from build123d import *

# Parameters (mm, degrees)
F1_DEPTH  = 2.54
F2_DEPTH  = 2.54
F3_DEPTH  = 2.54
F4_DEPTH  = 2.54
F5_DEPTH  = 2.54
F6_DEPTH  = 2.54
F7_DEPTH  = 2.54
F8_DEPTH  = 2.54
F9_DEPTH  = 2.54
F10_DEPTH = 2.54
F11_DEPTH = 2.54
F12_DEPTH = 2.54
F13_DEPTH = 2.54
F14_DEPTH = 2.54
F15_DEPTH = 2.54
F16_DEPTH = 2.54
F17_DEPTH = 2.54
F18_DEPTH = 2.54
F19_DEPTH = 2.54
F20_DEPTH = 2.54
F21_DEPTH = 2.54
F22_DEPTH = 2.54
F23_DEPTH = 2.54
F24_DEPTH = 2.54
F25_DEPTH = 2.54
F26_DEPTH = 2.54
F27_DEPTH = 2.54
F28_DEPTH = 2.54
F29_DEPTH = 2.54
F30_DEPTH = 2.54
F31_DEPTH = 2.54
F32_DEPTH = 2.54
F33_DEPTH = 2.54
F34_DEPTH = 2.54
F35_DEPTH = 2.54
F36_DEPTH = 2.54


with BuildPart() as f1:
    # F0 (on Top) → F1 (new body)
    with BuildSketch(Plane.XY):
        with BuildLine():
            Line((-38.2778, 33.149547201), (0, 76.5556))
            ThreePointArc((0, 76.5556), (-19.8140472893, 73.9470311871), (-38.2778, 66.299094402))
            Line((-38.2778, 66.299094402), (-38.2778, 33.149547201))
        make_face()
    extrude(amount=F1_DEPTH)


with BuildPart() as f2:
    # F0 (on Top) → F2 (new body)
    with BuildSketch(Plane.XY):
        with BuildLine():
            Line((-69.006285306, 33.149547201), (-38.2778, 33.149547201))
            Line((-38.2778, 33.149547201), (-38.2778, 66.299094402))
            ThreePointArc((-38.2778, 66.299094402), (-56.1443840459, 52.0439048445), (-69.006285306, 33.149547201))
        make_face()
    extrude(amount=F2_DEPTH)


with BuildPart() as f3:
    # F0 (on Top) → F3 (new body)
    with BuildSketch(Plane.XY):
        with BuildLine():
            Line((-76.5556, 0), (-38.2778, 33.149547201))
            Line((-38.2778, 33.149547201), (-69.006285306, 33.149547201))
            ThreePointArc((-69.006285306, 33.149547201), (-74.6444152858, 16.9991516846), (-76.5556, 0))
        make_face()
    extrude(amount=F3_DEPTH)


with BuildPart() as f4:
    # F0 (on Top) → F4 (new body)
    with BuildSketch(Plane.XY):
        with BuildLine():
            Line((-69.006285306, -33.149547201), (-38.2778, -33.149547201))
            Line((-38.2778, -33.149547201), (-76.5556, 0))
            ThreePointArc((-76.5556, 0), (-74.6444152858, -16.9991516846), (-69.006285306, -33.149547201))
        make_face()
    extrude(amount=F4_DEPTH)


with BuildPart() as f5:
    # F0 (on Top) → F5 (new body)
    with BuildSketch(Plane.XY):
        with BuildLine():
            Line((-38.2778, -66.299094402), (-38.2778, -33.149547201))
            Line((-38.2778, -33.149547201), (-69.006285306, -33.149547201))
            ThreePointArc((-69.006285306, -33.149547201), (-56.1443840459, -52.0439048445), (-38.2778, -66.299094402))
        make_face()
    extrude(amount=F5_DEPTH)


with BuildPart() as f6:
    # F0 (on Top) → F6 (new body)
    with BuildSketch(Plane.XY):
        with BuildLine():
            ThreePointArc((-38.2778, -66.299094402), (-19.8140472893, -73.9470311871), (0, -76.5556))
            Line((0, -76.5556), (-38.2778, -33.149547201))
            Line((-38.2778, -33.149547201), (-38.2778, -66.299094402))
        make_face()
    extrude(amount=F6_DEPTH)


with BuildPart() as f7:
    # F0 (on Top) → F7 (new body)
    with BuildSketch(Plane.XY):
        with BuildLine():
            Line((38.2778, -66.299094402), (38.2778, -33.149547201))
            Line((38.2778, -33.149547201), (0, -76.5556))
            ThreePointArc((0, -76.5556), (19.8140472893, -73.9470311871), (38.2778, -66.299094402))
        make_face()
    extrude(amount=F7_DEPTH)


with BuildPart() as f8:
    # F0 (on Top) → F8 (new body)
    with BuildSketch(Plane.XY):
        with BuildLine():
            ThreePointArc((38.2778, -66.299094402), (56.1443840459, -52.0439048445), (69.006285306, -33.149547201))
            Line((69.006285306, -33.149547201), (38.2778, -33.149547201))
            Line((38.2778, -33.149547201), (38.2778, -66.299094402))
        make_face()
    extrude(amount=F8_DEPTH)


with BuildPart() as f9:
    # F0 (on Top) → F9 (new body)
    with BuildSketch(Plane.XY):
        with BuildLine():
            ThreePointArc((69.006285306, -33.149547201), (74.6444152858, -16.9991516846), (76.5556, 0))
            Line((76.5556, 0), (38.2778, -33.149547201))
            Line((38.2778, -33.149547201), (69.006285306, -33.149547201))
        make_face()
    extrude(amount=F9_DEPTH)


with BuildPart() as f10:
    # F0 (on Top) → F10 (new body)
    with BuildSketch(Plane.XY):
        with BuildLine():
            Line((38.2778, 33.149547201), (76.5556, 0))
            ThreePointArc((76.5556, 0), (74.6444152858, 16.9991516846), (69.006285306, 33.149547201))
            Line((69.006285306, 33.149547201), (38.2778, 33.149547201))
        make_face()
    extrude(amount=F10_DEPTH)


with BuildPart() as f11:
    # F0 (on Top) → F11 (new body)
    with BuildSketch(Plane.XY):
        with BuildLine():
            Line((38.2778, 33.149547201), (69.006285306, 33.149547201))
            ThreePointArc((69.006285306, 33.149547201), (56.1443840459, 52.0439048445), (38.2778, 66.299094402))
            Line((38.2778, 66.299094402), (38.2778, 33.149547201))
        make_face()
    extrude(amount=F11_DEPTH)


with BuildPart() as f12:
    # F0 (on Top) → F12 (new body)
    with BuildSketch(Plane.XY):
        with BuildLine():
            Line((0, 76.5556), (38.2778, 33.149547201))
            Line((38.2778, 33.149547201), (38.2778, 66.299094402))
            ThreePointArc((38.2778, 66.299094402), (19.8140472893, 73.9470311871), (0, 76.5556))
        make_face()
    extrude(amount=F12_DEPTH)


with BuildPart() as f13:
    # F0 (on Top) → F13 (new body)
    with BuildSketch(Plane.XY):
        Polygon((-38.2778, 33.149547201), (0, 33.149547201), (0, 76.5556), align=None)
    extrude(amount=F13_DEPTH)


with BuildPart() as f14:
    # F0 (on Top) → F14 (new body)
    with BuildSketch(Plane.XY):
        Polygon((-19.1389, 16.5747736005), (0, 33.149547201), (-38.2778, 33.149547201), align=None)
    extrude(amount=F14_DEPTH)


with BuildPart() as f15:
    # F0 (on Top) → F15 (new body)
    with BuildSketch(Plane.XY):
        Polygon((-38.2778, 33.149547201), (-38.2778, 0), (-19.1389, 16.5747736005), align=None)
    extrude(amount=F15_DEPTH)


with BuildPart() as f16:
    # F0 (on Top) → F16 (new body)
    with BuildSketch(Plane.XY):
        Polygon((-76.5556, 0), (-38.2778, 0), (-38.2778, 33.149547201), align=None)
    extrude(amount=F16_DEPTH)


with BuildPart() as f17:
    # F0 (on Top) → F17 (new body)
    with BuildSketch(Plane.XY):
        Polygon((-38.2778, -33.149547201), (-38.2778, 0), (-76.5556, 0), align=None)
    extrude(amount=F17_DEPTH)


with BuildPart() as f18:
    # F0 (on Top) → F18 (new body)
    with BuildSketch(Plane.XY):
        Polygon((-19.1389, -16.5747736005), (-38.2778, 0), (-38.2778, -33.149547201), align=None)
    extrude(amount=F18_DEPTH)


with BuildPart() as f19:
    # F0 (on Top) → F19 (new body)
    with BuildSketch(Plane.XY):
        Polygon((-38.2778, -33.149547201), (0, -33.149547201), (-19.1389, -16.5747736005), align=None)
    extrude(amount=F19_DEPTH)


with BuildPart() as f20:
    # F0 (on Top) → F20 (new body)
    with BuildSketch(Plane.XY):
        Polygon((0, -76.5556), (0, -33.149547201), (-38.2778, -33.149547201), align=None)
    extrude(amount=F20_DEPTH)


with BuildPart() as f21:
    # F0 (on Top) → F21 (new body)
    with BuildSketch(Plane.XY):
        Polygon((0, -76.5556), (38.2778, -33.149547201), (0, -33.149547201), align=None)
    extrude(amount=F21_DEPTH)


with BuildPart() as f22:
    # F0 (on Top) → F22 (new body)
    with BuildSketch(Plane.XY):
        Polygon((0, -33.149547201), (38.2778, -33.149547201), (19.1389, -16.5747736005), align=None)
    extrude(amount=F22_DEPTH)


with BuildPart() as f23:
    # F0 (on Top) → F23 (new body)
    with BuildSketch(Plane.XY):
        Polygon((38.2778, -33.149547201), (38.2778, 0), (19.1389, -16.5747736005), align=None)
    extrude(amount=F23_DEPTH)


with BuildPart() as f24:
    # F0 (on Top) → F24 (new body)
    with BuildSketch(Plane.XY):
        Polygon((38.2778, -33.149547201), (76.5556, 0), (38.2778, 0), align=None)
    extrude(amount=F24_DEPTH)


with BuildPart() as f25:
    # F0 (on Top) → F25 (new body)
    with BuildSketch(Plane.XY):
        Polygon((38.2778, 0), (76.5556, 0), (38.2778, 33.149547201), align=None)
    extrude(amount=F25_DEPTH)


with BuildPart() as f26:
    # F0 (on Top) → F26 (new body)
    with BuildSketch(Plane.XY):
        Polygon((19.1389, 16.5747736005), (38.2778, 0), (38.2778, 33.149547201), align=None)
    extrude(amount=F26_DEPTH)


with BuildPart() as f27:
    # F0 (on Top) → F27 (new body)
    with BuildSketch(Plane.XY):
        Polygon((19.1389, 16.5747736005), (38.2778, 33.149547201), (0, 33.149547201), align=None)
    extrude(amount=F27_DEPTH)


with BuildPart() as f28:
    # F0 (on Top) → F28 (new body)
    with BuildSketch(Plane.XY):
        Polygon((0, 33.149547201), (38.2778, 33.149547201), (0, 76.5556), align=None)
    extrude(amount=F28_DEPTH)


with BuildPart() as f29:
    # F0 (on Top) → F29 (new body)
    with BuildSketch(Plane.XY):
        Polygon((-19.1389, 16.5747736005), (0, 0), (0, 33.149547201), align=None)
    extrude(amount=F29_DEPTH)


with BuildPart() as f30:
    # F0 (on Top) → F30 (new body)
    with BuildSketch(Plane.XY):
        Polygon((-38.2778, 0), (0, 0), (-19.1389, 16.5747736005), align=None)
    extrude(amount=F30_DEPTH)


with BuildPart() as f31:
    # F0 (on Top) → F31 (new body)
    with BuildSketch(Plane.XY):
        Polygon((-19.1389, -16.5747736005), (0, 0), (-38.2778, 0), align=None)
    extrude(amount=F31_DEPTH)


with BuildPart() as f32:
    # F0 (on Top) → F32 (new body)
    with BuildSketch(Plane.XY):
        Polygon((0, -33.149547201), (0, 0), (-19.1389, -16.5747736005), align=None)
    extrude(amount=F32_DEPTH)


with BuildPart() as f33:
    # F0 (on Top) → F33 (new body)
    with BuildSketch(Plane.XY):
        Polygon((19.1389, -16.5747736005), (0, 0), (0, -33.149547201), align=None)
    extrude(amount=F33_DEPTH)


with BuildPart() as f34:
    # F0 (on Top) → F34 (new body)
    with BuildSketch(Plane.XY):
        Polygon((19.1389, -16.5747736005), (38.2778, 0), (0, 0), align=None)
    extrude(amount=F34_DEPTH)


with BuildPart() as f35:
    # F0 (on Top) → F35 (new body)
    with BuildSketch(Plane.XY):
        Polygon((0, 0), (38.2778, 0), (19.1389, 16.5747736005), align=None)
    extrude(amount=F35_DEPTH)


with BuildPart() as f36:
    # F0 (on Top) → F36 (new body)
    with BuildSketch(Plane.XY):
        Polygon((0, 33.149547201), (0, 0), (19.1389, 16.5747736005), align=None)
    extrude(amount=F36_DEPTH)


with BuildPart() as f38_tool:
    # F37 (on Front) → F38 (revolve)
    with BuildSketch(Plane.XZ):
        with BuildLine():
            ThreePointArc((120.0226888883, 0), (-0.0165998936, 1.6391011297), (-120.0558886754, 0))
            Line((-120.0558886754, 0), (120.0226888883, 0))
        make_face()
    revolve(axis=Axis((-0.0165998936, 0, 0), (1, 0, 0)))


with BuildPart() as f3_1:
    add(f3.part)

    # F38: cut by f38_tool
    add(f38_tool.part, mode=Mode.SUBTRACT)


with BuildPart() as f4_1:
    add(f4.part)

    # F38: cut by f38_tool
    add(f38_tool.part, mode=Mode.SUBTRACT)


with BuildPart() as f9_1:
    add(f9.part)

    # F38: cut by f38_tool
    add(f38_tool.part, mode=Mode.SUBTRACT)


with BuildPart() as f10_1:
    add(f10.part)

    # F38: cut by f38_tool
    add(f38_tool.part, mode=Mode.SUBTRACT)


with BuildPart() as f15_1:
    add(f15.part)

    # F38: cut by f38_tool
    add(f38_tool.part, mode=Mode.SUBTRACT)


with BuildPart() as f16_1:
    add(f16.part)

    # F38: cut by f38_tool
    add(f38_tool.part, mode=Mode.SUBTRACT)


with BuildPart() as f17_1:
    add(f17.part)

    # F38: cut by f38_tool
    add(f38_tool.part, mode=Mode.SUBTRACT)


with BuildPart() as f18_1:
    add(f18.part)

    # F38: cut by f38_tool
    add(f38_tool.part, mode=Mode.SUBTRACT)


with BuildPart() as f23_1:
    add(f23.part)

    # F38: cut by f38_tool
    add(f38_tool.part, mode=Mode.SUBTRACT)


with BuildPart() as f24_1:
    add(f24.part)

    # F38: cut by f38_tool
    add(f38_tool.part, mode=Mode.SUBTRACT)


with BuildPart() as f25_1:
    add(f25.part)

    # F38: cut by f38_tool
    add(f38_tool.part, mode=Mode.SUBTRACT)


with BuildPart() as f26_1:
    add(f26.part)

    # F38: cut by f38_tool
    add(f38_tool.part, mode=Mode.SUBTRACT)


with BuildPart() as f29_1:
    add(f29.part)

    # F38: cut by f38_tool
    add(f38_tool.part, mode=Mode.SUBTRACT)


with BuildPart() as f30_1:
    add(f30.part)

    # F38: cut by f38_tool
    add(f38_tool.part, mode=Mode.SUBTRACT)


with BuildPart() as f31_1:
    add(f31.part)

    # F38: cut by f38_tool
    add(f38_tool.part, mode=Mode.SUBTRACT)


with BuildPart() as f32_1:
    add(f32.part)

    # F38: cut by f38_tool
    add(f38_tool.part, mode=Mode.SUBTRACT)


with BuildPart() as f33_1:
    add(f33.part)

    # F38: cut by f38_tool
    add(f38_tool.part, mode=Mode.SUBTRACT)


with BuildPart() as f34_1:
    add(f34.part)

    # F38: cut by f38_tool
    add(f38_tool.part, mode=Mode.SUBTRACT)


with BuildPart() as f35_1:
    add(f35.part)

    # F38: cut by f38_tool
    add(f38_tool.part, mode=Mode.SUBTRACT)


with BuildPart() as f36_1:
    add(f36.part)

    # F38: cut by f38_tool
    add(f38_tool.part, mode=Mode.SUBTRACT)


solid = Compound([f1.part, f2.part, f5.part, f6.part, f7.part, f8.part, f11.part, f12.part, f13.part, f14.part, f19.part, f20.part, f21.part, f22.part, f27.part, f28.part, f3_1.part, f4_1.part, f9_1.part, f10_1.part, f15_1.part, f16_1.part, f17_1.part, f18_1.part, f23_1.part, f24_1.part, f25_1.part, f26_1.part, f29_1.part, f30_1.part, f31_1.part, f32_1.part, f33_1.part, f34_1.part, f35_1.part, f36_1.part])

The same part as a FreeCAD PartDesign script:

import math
import FreeCAD as App
import Part
import Sketcher
from FreeCAD import Vector
Q = App.Units.Quantity

doc = App.newDocument("Part")
body = doc.addObject("PartDesign::Body", "Body")

sketch1 = body.newObject("Sketcher::SketchObject", "Sketch")
sketch1.AttachmentSupport = (doc.getObject("XY_Plane"), [""])
sketch1.MapMode = "FlatFace"
sketch1.addGeometry([
    Part.LineSegment(Vector(-38, 33, 0), Vector(0, 77, 0)),
    Part.ArcOfCircle(Part.Circle(Vector(0, 0, 0), Vector(0, 0, 1), 77), math.radians(90), math.radians(120)),
    Part.LineSegment(Vector(-38, 66, 0), Vector(-38, 33, 0)),
], False)
sketch1.addConstraint([
    Sketcher.Constraint("Coincident", 0, 2, 1, 1),
    Sketcher.Constraint("Coincident", 1, 2, 2, 1),
    Sketcher.Constraint("Coincident", 2, 2, 0, 1),
    Sketcher.Constraint("Vertical", 2),
    Sketcher.Constraint("Coincident", 1, 3, -1, 1),
    Sketcher.Constraint("PointOnObject", 0, 2, -2),
    Sketcher.Constraint("Radius", 1, Q("3.014 in")),
    Sketcher.Constraint("DistanceX", 1, 2, -1, 1, Q("1.507 in")),
    Sketcher.Constraint("DistanceY", 2, 2, 2, 1, Q("33.149547 mm")),
])
pad1 = body.newObject("PartDesign::Pad", "Pad")
pad1.Profile = sketch1
pad1.Length = Q("0.1 in")
body2 = doc.addObject("PartDesign::Body", "Body001")

sketch2 = body2.newObject("Sketcher::SketchObject", "Sketch001")
sketch2.AttachmentSupport = (doc.getObject("XY_Plane001"), [""])
sketch2.MapMode = "FlatFace"
sketch2.addGeometry([
    Part.LineSegment(Vector(-69, 33, 0), Vector(-38, 33, 0)),
    Part.LineSegment(Vector(-38, 33, 0), Vector(-38, 66, 0)),
    Part.ArcOfCircle(Part.Circle(Vector(0, 0, 0), Vector(0, 0, 1), 77), math.radians(120), math.radians(154)),
], False)
sketch2.addConstraint([
    Sketcher.Constraint("Coincident", 0, 2, 1, 1),
    Sketcher.Constraint("Coincident", 1, 2, 2, 1),
    Sketcher.Constraint("Coincident", 2, 2, 0, 1),
    Sketcher.Constraint("Horizontal", 0),
    Sketcher.Constraint("Vertical", 1),
    Sketcher.Constraint("Coincident", 2, 3, -1, 1),
    Sketcher.Constraint("Radius", 2, Q("3.014 in")),
    Sketcher.Constraint("DistanceX", 0, 2, -1, 1, Q("1.507 in")),
    Sketcher.Constraint("DistanceX", 0, 1, 0, 2, Q("30.728485 mm")),
])
pad2 = body2.newObject("PartDesign::Pad", "Pad001")
pad2.Profile = sketch2
pad2.Length = Q("0.1 in")
body3 = doc.addObject("PartDesign::Body", "Body002")

sketch3 = body3.newObject("Sketcher::SketchObject", "Sketch002")
sketch3.AttachmentSupport = (doc.getObject("XY_Plane002"), [""])
sketch3.MapMode = "FlatFace"
sketch3.addGeometry([
    Part.LineSegment(Vector(-77, 0, 0), Vector(-38, 33, 0)),
    Part.LineSegment(Vector(-38, 33, 0), Vector(-69, 33, 0)),
    Part.ArcOfCircle(Part.Circle(Vector(0, 0, 0), Vector(0, 0, 1), 77), math.radians(154), math.radians(180)),
], False)
sketch3.addConstraint([
    Sketcher.Constraint("Coincident", 0, 2, 1, 1),
    Sketcher.Constraint("Coincident", 1, 2, 2, 1),
    Sketcher.Constraint("Coincident", 2, 2, 0, 1),
    Sketcher.Constraint("Horizontal", 1),
    Sketcher.Constraint("Coincident", 2, 3, -1, 1),
    Sketcher.Constraint("PointOnObject", 2, 2, -1),
    Sketcher.Constraint("Radius", 2, Q("3.014 in")),
    Sketcher.Constraint("DistanceX", 0, 2, -1, 1, Q("1.507 in")),
    Sketcher.Constraint("Distance", 0, Q("50.63677 mm")),
])
pad3 = body3.newObject("PartDesign::Pad", "Pad002")
pad3.Profile = sketch3
pad3.Length = Q("0.1 in")
body4 = doc.addObject("PartDesign::Body", "Body003")

sketch4 = body4.newObject("Sketcher::SketchObject", "Sketch003")
sketch4.AttachmentSupport = (doc.getObject("XY_Plane003"), [""])
sketch4.MapMode = "FlatFace"
sketch4.addGeometry([
    Part.LineSegment(Vector(-69, -33, 0), Vector(-38, -33, 0)),
    Part.LineSegment(Vector(-38, -33, 0), Vector(-77, 0, 0)),
    Part.ArcOfCircle(Part.Circle(Vector(0, 0, 0), Vector(0, 0, 1), 77), math.radians(180), math.radians(206)),
], False)
sketch4.addConstraint([
    Sketcher.Constraint("Coincident", 0, 2, 1, 1),
    Sketcher.Constraint("Coincident", 1, 2, 2, 1),
    Sketcher.Constraint("Coincident", 2, 2, 0, 1),
    Sketcher.Constraint("Horizontal", 0),
    Sketcher.Constraint("Coincident", 2, 3, -1, 1),
    Sketcher.Constraint("PointOnObject", 1, 2, -1),
    Sketcher.Constraint("Radius", 2, Q("3.014 in")),
    Sketcher.Constraint("DistanceX", 0, 2, -1, 1, Q("1.507 in")),
    Sketcher.Constraint("Distance", 1, Q("50.63677 mm")),
])
pad4 = body4.newObject("PartDesign::Pad", "Pad003")
pad4.Profile = sketch4
pad4.Length = Q("0.1 in")
body5 = doc.addObject("PartDesign::Body", "Body004")

sketch5 = body5.newObject("Sketcher::SketchObject", "Sketch004")
sketch5.AttachmentSupport = (doc.getObject("XY_Plane004"), [""])
sketch5.MapMode = "FlatFace"
sketch5.addGeometry([
    Part.LineSegment(Vector(-38, -66, 0), Vector(-38, -33, 0)),
    Part.LineSegment(Vector(-38, -33, 0), Vector(-69, -33, 0)),
    Part.ArcOfCircle(Part.Circle(Vector(0, 0, 0), Vector(0, 0, 1), 77), math.radians(-154), math.radians(-120)),
], False)
sketch5.addConstraint([
    Sketcher.Constraint("Coincident", 0, 2, 1, 1),
    Sketcher.Constraint("Coincident", 1, 2, 2, 1),
    Sketcher.Constraint("Coincident", 2, 2, 0, 1),
    Sketcher.Constraint("Vertical", 0),
    Sketcher.Constraint("Horizontal", 1),
    Sketcher.Constraint("Coincident", 2, 3, -1, 1),
    Sketcher.Constraint("Radius", 2, Q("3.014 in")),
    Sketcher.Constraint("DistanceX", 0, 2, -1, 1, Q("1.507 in")),
    Sketcher.Constraint("DistanceX", 1, 2, 1, 1, Q("30.728485 mm")),
])
pad5 = body5.newObject("PartDesign::Pad", "Pad004")
pad5.Profile = sketch5
pad5.Length = Q("0.1 in")
body6 = doc.addObject("PartDesign::Body", "Body005")

sketch6 = body6.newObject("Sketcher::SketchObject", "Sketch005")
sketch6.AttachmentSupport = (doc.getObject("XY_Plane005"), [""])
sketch6.MapMode = "FlatFace"
sketch6.addGeometry([
    Part.ArcOfCircle(Part.Circle(Vector(0, 0, 0), Vector(0, 0, 1), 77), math.radians(-120), math.radians(-90)),
    Part.LineSegment(Vector(0, -77, 0), Vector(-38, -33, 0)),
    Part.LineSegment(Vector(-38, -33, 0), Vector(-38, -66, 0)),
], False)
sketch6.addConstraint([
    Sketcher.Constraint("Coincident", 0, 2, 1, 1),
    Sketcher.Constraint("Coincident", 1, 2, 2, 1),
    Sketcher.Constraint("Coincident", 2, 2, 0, 1),
    Sketcher.Constraint("Vertical", 2),
    Sketcher.Constraint("Coincident", 0, 3, -1, 1),
    Sketcher.Constraint("PointOnObject", 0, 2, -2),
    Sketcher.Constraint("Radius", 0, Q("3.014 in")),
    Sketcher.Constraint("DistanceX", 1, 2, -1, 1, Q("1.507 in")),
    Sketcher.Constraint("DistanceY", 2, 2, 2, 1, Q("33.149547 mm")),
])
pad6 = body6.newObject("PartDesign::Pad", "Pad005")
pad6.Profile = sketch6
pad6.Length = Q("0.1 in")
body7 = doc.addObject("PartDesign::Body", "Body006")

sketch7 = body7.newObject("Sketcher::SketchObject", "Sketch006")
sketch7.AttachmentSupport = (doc.getObject("XY_Plane006"), [""])
sketch7.MapMode = "FlatFace"
sketch7.addGeometry([
    Part.LineSegment(Vector(38, -66, 0), Vector(38, -33, 0)),
    Part.LineSegment(Vector(38, -33, 0), Vector(0, -77, 0)),
    Part.ArcOfCircle(Part.Circle(Vector(0, 0, 0), Vector(0, 0, 1), 77), math.radians(-90), math.radians(-60)),
], False)
sketch7.addConstraint([
    Sketcher.Constraint("Coincident", 0, 2, 1, 1),
    Sketcher.Constraint("Coincident", 1, 2, 2, 1),
    Sketcher.Constraint("Coincident", 2, 2, 0, 1),
    Sketcher.Constraint("Vertical", 0),
    Sketcher.Constraint("Coincident", 2, 3, -1, 1),
    Sketcher.Constraint("PointOnObject", 1, 2, -2),
    Sketcher.Constraint("Radius", 2, Q("3.014 in")),
    Sketcher.Constraint("DistanceX", -1, 1, 0, 2, Q("1.507 in")),
    Sketcher.Constraint("DistanceY", 0, 1, 0, 2, Q("33.149547 mm")),
])
pad7 = body7.newObject("PartDesign::Pad", "Pad006")
pad7.Profile = sketch7
pad7.Length = Q("0.1 in")
body8 = doc.addObject("PartDesign::Body", "Body007")

sketch8 = body8.newObject("Sketcher::SketchObject", "Sketch007")
sketch8.AttachmentSupport = (doc.getObject("XY_Plane007"), [""])
sketch8.MapMode = "FlatFace"
sketch8.addGeometry([
    Part.ArcOfCircle(Part.Circle(Vector(0, 0, 0), Vector(0, 0, 1), 77), math.radians(-60), math.radians(-26)),
    Part.LineSegment(Vector(69, -33, 0), Vector(38, -33, 0)),
    Part.LineSegment(Vector(38, -33, 0), Vector(38, -66, 0)),
], False)
sketch8.addConstraint([
    Sketcher.Constraint("Coincident", 0, 2, 1, 1),
    Sketcher.Constraint("Coincident", 1, 2, 2, 1),
    Sketcher.Constraint("Coincident", 2, 2, 0, 1),
    Sketcher.Constraint("Horizontal", 1),
    Sketcher.Constraint("Vertical", 2),
    Sketcher.Constraint("Coincident", 0, 3, -1, 1),
    Sketcher.Constraint("Radius", 0, Q("3.014 in")),
    Sketcher.Constraint("DistanceX", -1, 1, 1, 2, Q("1.507 in")),
    Sketcher.Constraint("DistanceX", 1, 2, 1, 1, Q("30.728485 mm")),
])
pad8 = body8.newObject("PartDesign::Pad", "Pad007")
pad8.Profile = sketch8
pad8.Length = Q("0.1 in")
body9 = doc.addObject("PartDesign::Body", "Body008")

sketch9 = body9.newObject("Sketcher::SketchObject", "Sketch008")
sketch9.AttachmentSupport = (doc.getObject("XY_Plane008"), [""])
sketch9.MapMode = "FlatFace"
sketch9.addGeometry([
    Part.ArcOfCircle(Part.Circle(Vector(0, 0, 0), Vector(0, 0, 1), 77), math.radians(-26), math.radians(0)),
    Part.LineSegment(Vector(77, 0, 0), Vector(38, -33, 0)),
    Part.LineSegment(Vector(38, -33, 0), Vector(69, -33, 0)),
], False)
sketch9.addConstraint([
    Sketcher.Constraint("Coincident", 0, 2, 1, 1),
    Sketcher.Constraint("Coincident", 1, 2, 2, 1),
    Sketcher.Constraint("Coincident", 2, 2, 0, 1),
    Sketcher.Constraint("Horizontal", 2),
    Sketcher.Constraint("Coincident", 0, 3, -1, 1),
    Sketcher.Constraint("PointOnObject", 0, 2, -1),
    Sketcher.Constraint("Radius", 0, Q("3.014 in")),
    Sketcher.Constraint("DistanceX", -1, 1, 1, 2, Q("1.507 in")),
    Sketcher.Constraint("Distance", 1, Q("50.63677 mm")),
])
pad9 = body9.newObject("PartDesign::Pad", "Pad008")
pad9.Profile = sketch9
pad9.Length = Q("0.1 in")
body10 = doc.addObject("PartDesign::Body", "Body009")

sketch10 = body10.newObject("Sketcher::SketchObject", "Sketch009")
sketch10.AttachmentSupport = (doc.getObject("XY_Plane009"), [""])
sketch10.MapMode = "FlatFace"
sketch10.addGeometry([
    Part.LineSegment(Vector(38, 33, 0), Vector(77, 0, 0)),
    Part.ArcOfCircle(Part.Circle(Vector(0, 0, 0), Vector(0, 0, 1), 77), math.radians(0), math.radians(26)),
    Part.LineSegment(Vector(69, 33, 0), Vector(38, 33, 0)),
], False)
sketch10.addConstraint([
    Sketcher.Constraint("Coincident", 0, 2, 1, 1),
    Sketcher.Constraint("Coincident", 1, 2, 2, 1),
    Sketcher.Constraint("Coincident", 2, 2, 0, 1),
    Sketcher.Constraint("Horizontal", 2),
    Sketcher.Constraint("Coincident", 1, 3, -1, 1),
    Sketcher.Constraint("PointOnObject", 0, 2, -1),
    Sketcher.Constraint("Radius", 1, Q("3.014 in")),
    Sketcher.Constraint("DistanceX", -1, 1, 2, 2, Q("1.507 in")),
    Sketcher.Constraint("Distance", 0, Q("50.63677 mm")),
])
pad10 = body10.newObject("PartDesign::Pad", "Pad009")
pad10.Profile = sketch10
pad10.Length = Q("0.1 in")
body11 = doc.addObject("PartDesign::Body", "Body010")

sketch11 = body11.newObject("Sketcher::SketchObject", "Sketch010")
sketch11.AttachmentSupport = (doc.getObject("XY_Plane010"), [""])
sketch11.MapMode = "FlatFace"
sketch11.addGeometry([
    Part.LineSegment(Vector(38, 33, 0), Vector(69, 33, 0)),
    Part.ArcOfCircle(Part.Circle(Vector(0, 0, 0), Vector(0, 0, 1), 77), math.radians(26), math.radians(60)),
    Part.LineSegment(Vector(38, 66, 0), Vector(38, 33, 0)),
], False)
sketch11.addConstraint([
    Sketcher.Constraint("Coincident", 0, 2, 1, 1),
    Sketcher.Constraint("Coincident", 1, 2, 2, 1),
    Sketcher.Constraint("Coincident", 2, 2, 0, 1),
    Sketcher.Constraint("Horizontal", 0),
    Sketcher.Constraint("Vertical", 2),
    Sketcher.Constraint("Coincident", 1, 3, -1, 1),
    Sketcher.Constraint("Radius", 1, Q("3.014 in")),
    Sketcher.Constraint("DistanceX", -1, 1, 1, 2, Q("1.507 in")),
    Sketcher.Constraint("DistanceX", 0, 1, 0, 2, Q("30.728485 mm")),
])
pad11 = body11.newObject("PartDesign::Pad", "Pad010")
pad11.Profile = sketch11
pad11.Length = Q("0.1 in")
body12 = doc.addObject("PartDesign::Body", "Body011")

sketch12 = body12.newObject("Sketcher::SketchObject", "Sketch011")
sketch12.AttachmentSupport = (doc.getObject("XY_Plane011"), [""])
sketch12.MapMode = "FlatFace"
sketch12.addGeometry([
    Part.LineSegment(Vector(0, 77, 0), Vector(38, 33, 0)),
    Part.LineSegment(Vector(38, 33, 0), Vector(38, 66, 0)),
    Part.ArcOfCircle(Part.Circle(Vector(0, 0, 0), Vector(0, 0, 1), 77), math.radians(60), math.radians(90)),
], False)
sketch12.addConstraint([
    Sketcher.Constraint("Coincident", 0, 2, 1, 1),
    Sketcher.Constraint("Coincident", 1, 2, 2, 1),
    Sketcher.Constraint("Coincident", 2, 2, 0, 1),
    Sketcher.Constraint("Vertical", 1),
    Sketcher.Constraint("Coincident", 2, 3, -1, 1),
    Sketcher.Constraint("PointOnObject", 2, 2, -2),
    Sketcher.Constraint("Radius", 2, Q("3.014 in")),
    Sketcher.Constraint("DistanceX", -1, 1, 0, 2, Q("1.507 in")),
    Sketcher.Constraint("DistanceY", 1, 1, 1, 2, Q("33.149547 mm")),
])
pad12 = body12.newObject("PartDesign::Pad", "Pad011")
pad12.Profile = sketch12
pad12.Length = Q("0.1 in")
body13 = doc.addObject("PartDesign::Body", "Body012")

sketch13 = body13.newObject("Sketcher::SketchObject", "Sketch012")
sketch13.AttachmentSupport = (doc.getObject("XY_Plane012"), [""])
sketch13.MapMode = "FlatFace"
sketch13.addGeometry([
    Part.LineSegment(Vector(-38, 33, 0), Vector(0, 33, 0)),
    Part.LineSegment(Vector(0, 33, 0), Vector(0, 77, 0)),
    Part.LineSegment(Vector(0, 77, 0), Vector(-38, 33, 0)),
], False)
sketch13.addConstraint([
    Sketcher.Constraint("Coincident", 0, 2, 1, 1),
    Sketcher.Constraint("Coincident", 1, 2, 2, 1),
    Sketcher.Constraint("Coincident", 2, 2, 0, 1),
    Sketcher.Constraint("Horizontal", 0),
    Sketcher.Constraint("Vertical", 1),
    Sketcher.Constraint("PointOnObject", 0, 2, -2),
    Sketcher.Constraint("DistanceX", 0, 1, 0, 2, Q("1.507 in")),
    Sketcher.Constraint("DistanceY", -1, 1, 1, 2, Q("3.014 in")),
    Sketcher.Constraint("DistanceY", 1, 1, 1, 2, Q("43.406053 mm")),
])
pad13 = body13.newObject("PartDesign::Pad", "Pad012")
pad13.Profile = sketch13
pad13.Length = Q("0.1 in")
body14 = doc.addObject("PartDesign::Body", "Body013")

sketch14 = body14.newObject("Sketcher::SketchObject", "Sketch013")
sketch14.AttachmentSupport = (doc.getObject("XY_Plane013"), [""])
sketch14.MapMode = "FlatFace"
sketch14.addGeometry([
    Part.LineSegment(Vector(-19, 17, 0), Vector(0, 33, 0)),
    Part.LineSegment(Vector(0, 33, 0), Vector(-38, 33, 0)),
    Part.LineSegment(Vector(-38, 33, 0), Vector(-19, 17, 0)),
], False)
sketch14.addConstraint([
    Sketcher.Constraint("Coincident", 0, 2, 1, 1),
    Sketcher.Constraint("Coincident", 1, 2, 2, 1),
    Sketcher.Constraint("Coincident", 2, 2, 0, 1),
    Sketcher.Constraint("Horizontal", 1),
    Sketcher.Constraint("PointOnObject", 0, 2, -2),
    Sketcher.Constraint("Equal", 0, 2),
    Sketcher.Constraint("DistanceX", 1, 2, 1, 1, Q("1.507 in")),
    Sketcher.Constraint("Distance", 0, Q("25.318385 mm")),
    Sketcher.Constraint("DistanceY", -1, 1, 0, 2, Q("33.149547 mm")),
])
pad14 = body14.newObject("PartDesign::Pad", "Pad013")
pad14.Profile = sketch14
pad14.Length = Q("0.1 in")
body15 = doc.addObject("PartDesign::Body", "Body014")

sketch15 = body15.newObject("Sketcher::SketchObject", "Sketch014")
sketch15.AttachmentSupport = (doc.getObject("XY_Plane014"), [""])
sketch15.MapMode = "FlatFace"
sketch15.addGeometry([
    Part.LineSegment(Vector(-38, 33, 0), Vector(-38, 0, 0)),
    Part.LineSegment(Vector(-38, 0, 0), Vector(-19, 17, 0)),
    Part.LineSegment(Vector(-19, 17, 0), Vector(-38, 33, 0)),
], False)
sketch15.addConstraint([
    Sketcher.Constraint("Coincident", 0, 2, 1, 1),
    Sketcher.Constraint("Coincident", 1, 2, 2, 1),
    Sketcher.Constraint("Coincident", 2, 2, 0, 1),
    Sketcher.Constraint("Vertical", 0),
    Sketcher.Constraint("PointOnObject", 0, 2, -1),
    Sketcher.Constraint("Equal", 1, 2),
    Sketcher.Constraint("DistanceX", 0, 2, -1, 1, Q("1.507 in")),
    Sketcher.Constraint("DistanceX", 1, 2, -1, 1, Q("0.7535 in")),
    Sketcher.Constraint("DistanceY", 0, 2, 0, 1, Q("33.149547 mm")),
])
pad15 = body15.newObject("PartDesign::Pad", "Pad014")
pad15.Profile = sketch15
pad15.Length = Q("0.1 in")
body16 = doc.addObject("PartDesign::Body", "Body015")

sketch16 = body16.newObject("Sketcher::SketchObject", "Sketch015")
sketch16.AttachmentSupport = (doc.getObject("XY_Plane015"), [""])
sketch16.MapMode = "FlatFace"
sketch16.addGeometry([
    Part.LineSegment(Vector(-77, 0, 0), Vector(-38, 0, 0)),
    Part.LineSegment(Vector(-38, 0, 0), Vector(-38, 33, 0)),
    Part.LineSegment(Vector(-38, 33, 0), Vector(-77, 0, 0)),
], False)
sketch16.addConstraint([
    Sketcher.Constraint("Coincident", 0, 2, 1, 1),
    Sketcher.Constraint("Coincident", 1, 2, 2, 1),
    Sketcher.Constraint("Coincident", 2, 2, 0, 1),
    Sketcher.Constraint("Horizontal", 0),
    Sketcher.Constraint("Vertical", 1),
    Sketcher.Constraint("PointOnObject", 0, 2, -1),
    Sketcher.Constraint("DistanceX", 0, 1, 0, 2, Q("1.507 in")),
    Sketcher.Constraint("DistanceX", 0, 2, -1, 1, Q("1.507 in")),
    Sketcher.Constraint("Distance", 2, Q("50.63677 mm")),
])
pad16 = body16.newObject("PartDesign::Pad", "Pad015")
pad16.Profile = sketch16
pad16.Length = Q("0.1 in")
body17 = doc.addObject("PartDesign::Body", "Body016")

sketch17 = body17.newObject("Sketcher::SketchObject", "Sketch016")
sketch17.AttachmentSupport = (doc.getObject("XY_Plane016"), [""])
sketch17.MapMode = "FlatFace"
sketch17.addGeometry([
    Part.LineSegment(Vector(-38, -33, 0), Vector(-38, 0, 0)),
    Part.LineSegment(Vector(-38, 0, 0), Vector(-77, 0, 0)),
    Part.LineSegment(Vector(-77, 0, 0), Vector(-38, -33, 0)),
], False)
sketch17.addConstraint([
    Sketcher.Constraint("Coincident", 0, 2, 1, 1),
    Sketcher.Constraint("Coincident", 1, 2, 2, 1),
    Sketcher.Constraint("Coincident", 2, 2, 0, 1),
    Sketcher.Constraint("Vertical", 0),
    Sketcher.Constraint("Horizontal", 1),
    Sketcher.Constraint("PointOnObject", 0, 2, -1),
    Sketcher.Constraint("DistanceX", 1, 2, 1, 1, Q("1.507 in")),
    Sketcher.Constraint("DistanceX", 0, 2, -1, 1, Q("1.507 in")),
    Sketcher.Constraint("Distance", 2, Q("50.63677 mm")),
])
pad17 = body17.newObject("PartDesign::Pad", "Pad016")
pad17.Profile = sketch17
pad17.Length = Q("0.1 in")
body18 = doc.addObject("PartDesign::Body", "Body017")

sketch18 = body18.newObject("Sketcher::SketchObject", "Sketch017")
sketch18.AttachmentSupport = (doc.getObject("XY_Plane017"), [""])
sketch18.MapMode = "FlatFace"
sketch18.addGeometry([
    Part.LineSegment(Vector(-19, -17, 0), Vector(-38, 0, 0)),
    Part.LineSegment(Vector(-38, 0, 0), Vector(-38, -33, 0)),
    Part.LineSegment(Vector(-38, -33, 0), Vector(-19, -17, 0)),
], False)
sketch18.addConstraint([
    Sketcher.Constraint("Coincident", 0, 2, 1, 1),
    Sketcher.Constraint("Coincident", 1, 2, 2, 1),
    Sketcher.Constraint("Coincident", 2, 2, 0, 1),
    Sketcher.Constraint("Vertical", 1),
    Sketcher.Constraint("PointOnObject", 0, 2, -1),
    Sketcher.Constraint("Equal", 0, 2),
    Sketcher.Constraint("DistanceX", 0, 2, -1, 1, Q("1.507 in")),
    Sketcher.Constraint("DistanceX", 2, 2, -1, 1, Q("0.7535 in")),
    Sketcher.Constraint("DistanceY", 1, 2, 1, 1, Q("33.149547 mm")),
])
pad18 = body18.newObject("PartDesign::Pad", "Pad017")
pad18.Profile = sketch18
pad18.Length = Q("0.1 in")
body19 = doc.addObject("PartDesign::Body", "Body018")

sketch19 = body19.newObject("Sketcher::SketchObject", "Sketch018")
sketch19.AttachmentSupport = (doc.getObject("XY_Plane018"), [""])
sketch19.MapMode = "FlatFace"
sketch19.addGeometry([
    Part.LineSegment(Vector(-38, -33, 0), Vector(0, -33, 0)),
    Part.LineSegment(Vector(0, -33, 0), Vector(-19, -17, 0)),
    Part.LineSegment(Vector(-19, -17, 0), Vector(-38, -33, 0)),
], False)
sketch19.addConstraint([
    Sketcher.Constraint("Coincident", 0, 2, 1, 1),
    Sketcher.Constraint("Coincident", 1, 2, 2, 1),
    Sketcher.Constraint("Coincident", 2, 2, 0, 1),
    Sketcher.Constraint("Horizontal", 0),
    Sketcher.Constraint("PointOnObject", 0, 2, -2),
    Sketcher.Constraint("Equal", 1, 2),
    Sketcher.Constraint("DistanceX", 0, 1, 0, 2, Q("1.507 in")),
    Sketcher.Constraint("Distance", 1, Q("25.318385 mm")),
    Sketcher.Constraint("DistanceY", 0, 2, -1, 1, Q("33.149547 mm")),
])
pad19 = body19.newObject("PartDesign::Pad", "Pad018")
pad19.Profile = sketch19
pad19.Length = Q("0.1 in")
body20 = doc.addObject("PartDesign::Body", "Body019")

sketch20 = body20.newObject("Sketcher::SketchObject", "Sketch019")
sketch20.AttachmentSupport = (doc.getObject("XY_Plane019"), [""])
sketch20.MapMode = "FlatFace"
sketch20.addGeometry([
    Part.LineSegment(Vector(0, -77, 0), Vector(0, -33, 0)),
    Part.LineSegment(Vector(0, -33, 0), Vector(-38, -33, 0)),
    Part.LineSegment(Vector(-38, -33, 0), Vector(0, -77, 0)),
], False)
sketch20.addConstraint([
    Sketcher.Constraint("Coincident", 0, 2, 1, 1),
    Sketcher.Constraint("Coincident", 1, 2, 2, 1),
    Sketcher.Constraint("Coincident", 2, 2, 0, 1),
    Sketcher.Constraint("Vertical", 0),
    Sketcher.Constraint("Horizontal", 1),
    Sketcher.Constraint("PointOnObject", 0, 2, -2),
    Sketcher.Constraint("DistanceX", 1, 2, 1, 1, Q("1.507 in")),
    Sketcher.Constraint("DistanceY", 2, 2, -1, 1, Q("3.014 in")),
    Sketcher.Constraint("DistanceY", 0, 1, 0, 2, Q("43.406053 mm")),
])
pad20 = body20.newObject("PartDesign::Pad", "Pad019")
pad20.Profile = sketch20
pad20.Length = Q("0.1 in")
body21 = doc.addObject("PartDesign::Body", "Body020")

sketch21 = body21.newObject("Sketcher::SketchObject", "Sketch020")
sketch21.AttachmentSupport = (doc.getObject("XY_Plane020"), [""])
sketch21.MapMode = "FlatFace"
sketch21.addGeometry([
    Part.LineSegment(Vector(0, -77, 0), Vector(38, -33, 0)),
    Part.LineSegment(Vector(38, -33, 0), Vector(0, -33, 0)),
    Part.LineSegment(Vector(0, -33, 0), Vector(0, -77, 0)),
], False)
sketch21.addConstraint([
    Sketcher.Constraint("Coincident", 0, 2, 1, 1),
    Sketcher.Constraint("Coincident", 1, 2, 2, 1),
    Sketcher.Constraint("Coincident", 2, 2, 0, 1),
    Sketcher.Constraint("Horizontal", 1),
    Sketcher.Constraint("Vertical", 2),
    Sketcher.Constraint("PointOnObject", 1, 2, -2),
    Sketcher.Constraint("DistanceX", 1, 2, 1, 1, Q("1.507 in")),
    Sketcher.Constraint("DistanceY", 2, 2, -1, 1, Q("3.014 in")),
    Sketcher.Constraint("DistanceY", 2, 2, 2, 1, Q("43.406053 mm")),
])
pad21 = body21.newObject("PartDesign::Pad", "Pad020")
pad21.Profile = sketch21
pad21.Length = Q("0.1 in")
body22 = doc.addObject("PartDesign::Body", "Body021")

sketch22 = body22.newObject("Sketcher::SketchObject", "Sketch021")
sketch22.AttachmentSupport = (doc.getObject("XY_Plane021"), [""])
sketch22.MapMode = "FlatFace"
sketch22.addGeometry([
    Part.LineSegment(Vector(0, -33, 0), Vector(38, -33, 0)),
    Part.LineSegment(Vector(38, -33, 0), Vector(19, -17, 0)),
    Part.LineSegment(Vector(19, -17, 0), Vector(0, -33, 0)),
], False)
sketch22.addConstraint([
    Sketcher.Constraint("Coincident", 0, 2, 1, 1),
    Sketcher.Constraint("Coincident", 1, 2, 2, 1),
    Sketcher.Constraint("Coincident", 2, 2, 0, 1),
    Sketcher.Constraint("Horizontal", 0),
    Sketcher.Constraint("PointOnObject", 2, 2, -2),
    Sketcher.Constraint("Equal", 1, 2),
    Sketcher.Constraint("DistanceX", 0, 1, 0, 2, Q("1.507 in")),
    Sketcher.Constraint("Distance", 1, Q("25.318385 mm")),
    Sketcher.Constraint("DistanceY", 0, 2, -1, 1, Q("33.149547 mm")),
])
pad22 = body22.newObject("PartDesign::Pad", "Pad021")
pad22.Profile = sketch22
pad22.Length = Q("0.1 in")
body23 = doc.addObject("PartDesign::Body", "Body022")

sketch23 = body23.newObject("Sketcher::SketchObject", "Sketch022")
sketch23.AttachmentSupport = (doc.getObject("XY_Plane022"), [""])
sketch23.MapMode = "FlatFace"
sketch23.addGeometry([
    Part.LineSegment(Vector(38, -33, 0), Vector(38, 0, 0)),
    Part.LineSegment(Vector(38, 0, 0), Vector(19, -17, 0)),
    Part.LineSegment(Vector(19, -17, 0), Vector(38, -33, 0)),
], False)
sketch23.addConstraint([
    Sketcher.Constraint("Coincident", 0, 2, 1, 1),
    Sketcher.Constraint("Coincident", 1, 2, 2, 1),
    Sketcher.Constraint("Coincident", 2, 2, 0, 1),
    Sketcher.Constraint("Vertical", 0),
    Sketcher.Constraint("PointOnObject", 0, 2, -1),
    Sketcher.Constraint("Equal", 1, 2),
    Sketcher.Constraint("DistanceX", -1, 1, 0, 2, Q("1.507 in")),
    Sketcher.Constraint("DistanceX", -1, 1, 1, 2, Q("0.7535 in")),
    Sketcher.Constraint("DistanceY", 0, 1, 0, 2, Q("33.149547 mm")),
])
pad23 = body23.newObject("PartDesign::Pad", "Pad022")
pad23.Profile = sketch23
pad23.Length = Q("0.1 in")
body24 = doc.addObject("PartDesign::Body", "Body023")

sketch24 = body24.newObject("Sketcher::SketchObject", "Sketch023")
sketch24.AttachmentSupport = (doc.getObject("XY_Plane023"), [""])
sketch24.MapMode = "FlatFace"
sketch24.addGeometry([
    Part.LineSegment(Vector(38, -33, 0), Vector(77, 0, 0)),
    Part.LineSegment(Vector(77, 0, 0), Vector(38, 0, 0)),
    Part.LineSegment(Vector(38, 0, 0), Vector(38, -33, 0)),
], False)
sketch24.addConstraint([
    Sketcher.Constraint("Coincident", 0, 2, 1, 1),
    Sketcher.Constraint("Coincident", 1, 2, 2, 1),
    Sketcher.Constraint("Coincident", 2, 2, 0, 1),
    Sketcher.Constraint("Horizontal", 1),
    Sketcher.Constraint("Vertical", 2),
    Sketcher.Constraint("PointOnObject", 0, 2, -1),
    Sketcher.Constraint("DistanceX", 1, 2, 1, 1, Q("1.507 in")),
    Sketcher.Constraint("DistanceX", -1, 1, 0, 2, Q("3.014 in")),
    Sketcher.Constraint("Distance", 0, Q("50.63677 mm")),
])
pad24 = body24.newObject("PartDesign::Pad", "Pad023")
pad24.Profile = sketch24
pad24.Length = Q("0.1 in")
body25 = doc.addObject("PartDesign::Body", "Body024")

sketch25 = body25.newObject("Sketcher::SketchObject", "Sketch024")
sketch25.AttachmentSupport = (doc.getObject("XY_Plane024"), [""])
sketch25.MapMode = "FlatFace"
sketch25.addGeometry([
    Part.LineSegment(Vector(38, 0, 0), Vector(77, 0, 0)),
    Part.LineSegment(Vector(77, 0, 0), Vector(38, 33, 0)),
    Part.LineSegment(Vector(38, 33, 0), Vector(38, 0, 0)),
], False)
sketch25.addConstraint([
    Sketcher.Constraint("Coincident", 0, 2, 1, 1),
    Sketcher.Constraint("Coincident", 1, 2, 2, 1),
    Sketcher.Constraint("Coincident", 2, 2, 0, 1),
    Sketcher.Constraint("Horizontal", 0),
    Sketcher.Constraint("Vertical", 2),
    Sketcher.Constraint("PointOnObject", 0, 2, -1),
    Sketcher.Constraint("DistanceX", 0, 1, 0, 2, Q("1.507 in")),
    Sketcher.Constraint("DistanceX", -1, 1, 0, 2, Q("3.014 in")),
    Sketcher.Constraint("Distance", 1, Q("50.63677 mm")),
])
pad25 = body25.newObject("PartDesign::Pad", "Pad024")
pad25.Profile = sketch25
pad25.Length = Q("0.1 in")
body26 = doc.addObject("PartDesign::Body", "Body025")

sketch26 = body26.newObject("Sketcher::SketchObject", "Sketch025")
sketch26.AttachmentSupport = (doc.getObject("XY_Plane025"), [""])
sketch26.MapMode = "FlatFace"
sketch26.addGeometry([
    Part.LineSegment(Vector(19, 17, 0), Vector(38, 0, 0)),
    Part.LineSegment(Vector(38, 0, 0), Vector(38, 33, 0)),
    Part.LineSegment(Vector(38, 33, 0), Vector(19, 17, 0)),
], False)
sketch26.addConstraint([
    Sketcher.Constraint("Coincident", 0, 2, 1, 1),
    Sketcher.Constraint("Coincident", 1, 2, 2, 1),
    Sketcher.Constraint("Coincident", 2, 2, 0, 1),
    Sketcher.Constraint("Vertical", 1),
    Sketcher.Constraint("PointOnObject", 0, 2, -1),
    Sketcher.Constraint("Equal", 0, 2),
    Sketcher.Constraint("DistanceX", -1, 1, 0, 2, Q("1.507 in")),
    Sketcher.Constraint("DistanceX", -1, 1, 2, 2, Q("0.7535 in")),
    Sketcher.Constraint("DistanceY", 1, 1, 1, 2, Q("33.149547 mm")),
])
pad26 = body26.newObject("PartDesign::Pad", "Pad025")
pad26.Profile = sketch26
pad26.Length = Q("0.1 in")
body27 = doc.addObject("PartDesign::Body", "Body026")

sketch27 = body27.newObject("Sketcher::SketchObject", "Sketch026")
sketch27.AttachmentSupport = (doc.getObject("XY_Plane026"), [""])
sketch27.MapMode = "FlatFace"
sketch27.addGeometry([
    Part.LineSegment(Vector(19, 17, 0), Vector(38, 33, 0)),
    Part.LineSegment(Vector(38, 33, 0), Vector(0, 33, 0)),
    Part.LineSegment(Vector(0, 33, 0), Vector(19, 17, 0)),
], False)
sketch27.addConstraint([
    Sketcher.Constraint("Coincident", 0, 2, 1, 1),
    Sketcher.Constraint("Coincident", 1, 2, 2, 1),
    Sketcher.Constraint("Coincident", 2, 2, 0, 1),
    Sketcher.Constraint("Horizontal", 1),
    Sketcher.Constraint("PointOnObject", 1, 2, -2),
    Sketcher.Constraint("Equal", 0, 2),
    Sketcher.Constraint("DistanceX", 1, 2, 1, 1, Q("1.507 in")),
    Sketcher.Constraint("Distance", 0, Q("25.318385 mm")),
    Sketcher.Constraint("DistanceY", -1, 1, 0, 2, Q("33.149547 mm")),
])
pad27 = body27.newObject("PartDesign::Pad", "Pad026")
pad27.Profile = sketch27
pad27.Length = Q("0.1 in")
body28 = doc.addObject("PartDesign::Body", "Body027")

sketch28 = body28.newObject("Sketcher::SketchObject", "Sketch027")
sketch28.AttachmentSupport = (doc.getObject("XY_Plane027"), [""])
sketch28.MapMode = "FlatFace"
sketch28.addGeometry([
    Part.LineSegment(Vector(0, 33, 0), Vector(38, 33, 0)),
    Part.LineSegment(Vector(38, 33, 0), Vector(0, 77, 0)),
    Part.LineSegment(Vector(0, 77, 0), Vector(0, 33, 0)),
], False)
sketch28.addConstraint([
    Sketcher.Constraint("Coincident", 0, 2, 1, 1),
    Sketcher.Constraint("Coincident", 1, 2, 2, 1),
    Sketcher.Constraint("Coincident", 2, 2, 0, 1),
    Sketcher.Constraint("Horizontal", 0),
    Sketcher.Constraint("Vertical", 2),
    Sketcher.Constraint("PointOnObject", 1, 2, -2),
    Sketcher.Constraint("DistanceX", 0, 1, 0, 2, Q("1.507 in")),
    Sketcher.Constraint("DistanceY", -1, 1, 1, 2, Q("3.014 in")),
    Sketcher.Constraint("DistanceY", 2, 2, 2, 1, Q("43.406053 mm")),
])
pad28 = body28.newObject("PartDesign::Pad", "Pad027")
pad28.Profile = sketch28
pad28.Length = Q("0.1 in")
body29 = doc.addObject("PartDesign::Body", "Body028")

sketch29 = body29.newObject("Sketcher::SketchObject", "Sketch028")
sketch29.AttachmentSupport = (doc.getObject("XY_Plane028"), [""])
sketch29.MapMode = "FlatFace"
sketch29.addGeometry([
    Part.LineSegment(Vector(-19, 17, 0), Vector(0, 0, 0)),
    Part.LineSegment(Vector(0, 0, 0), Vector(0, 33, 0)),
    Part.LineSegment(Vector(0, 33, 0), Vector(-19, 17, 0)),
], False)
sketch29.addConstraint([
    Sketcher.Constraint("Coincident", 0, 2, 1, 1),
    Sketcher.Constraint("Coincident", 1, 2, 2, 1),
    Sketcher.Constraint("Coincident", 2, 2, 0, 1),
    Sketcher.Constraint("Vertical", 1),
    Sketcher.Constraint("Coincident", 0, 2, -1, 1),
    Sketcher.Constraint("Equal", 0, 2),
    Sketcher.Constraint("DistanceX", 2, 2, -1, 1, Q("0.7535 in")),
    Sketcher.Constraint("DistanceY", 1, 1, 1, 2, Q("33.149547 mm")),
])
pad29 = body29.newObject("PartDesign::Pad", "Pad028")
pad29.Profile = sketch29
pad29.Length = Q("0.1 in")
body30 = doc.addObject("PartDesign::Body", "Body029")

sketch30 = body30.newObject("Sketcher::SketchObject", "Sketch029")
sketch30.AttachmentSupport = (doc.getObject("XY_Plane029"), [""])
sketch30.MapMode = "FlatFace"
sketch30.addGeometry([
    Part.LineSegment(Vector(-38, 0, 0), Vector(0, 0, 0)),
    Part.LineSegment(Vector(0, 0, 0), Vector(-19, 17, 0)),
    Part.LineSegment(Vector(-19, 17, 0), Vector(-38, 0, 0)),
], False)
sketch30.addConstraint([
    Sketcher.Constraint("Coincident", 0, 2, 1, 1),
    Sketcher.Constraint("Coincident", 1, 2, 2, 1),
    Sketcher.Constraint("Coincident", 2, 2, 0, 1),
    Sketcher.Constraint("Horizontal", 0),
    Sketcher.Constraint("Coincident", 0, 2, -1, 1),
    Sketcher.Constraint("Equal", 1, 2),
    Sketcher.Constraint("DistanceX", 0, 1, 0, 2, Q("1.507 in")),
    Sketcher.Constraint("Distance", 1, Q("25.318385 mm")),
])
pad30 = body30.newObject("PartDesign::Pad", "Pad029")
pad30.Profile = sketch30
pad30.Length = Q("0.1 in")
body31 = doc.addObject("PartDesign::Body", "Body030")

sketch31 = body31.newObject("Sketcher::SketchObject", "Sketch030")
sketch31.AttachmentSupport = (doc.getObject("XY_Plane030"), [""])
sketch31.MapMode = "FlatFace"
sketch31.addGeometry([
    Part.LineSegment(Vector(-19, -17, 0), Vector(0, 0, 0)),
    Part.LineSegment(Vector(0, 0, 0), Vector(-38, 0, 0)),
    Part.LineSegment(Vector(-38, 0, 0), Vector(-19, -17, 0)),
], False)
sketch31.addConstraint([
    Sketcher.Constraint("Coincident", 0, 2, 1, 1),
    Sketcher.Constraint("Coincident", 1, 2, 2, 1),
    Sketcher.Constraint("Coincident", 2, 2, 0, 1),
    Sketcher.Constraint("Horizontal", 1),
    Sketcher.Constraint("Coincident", 0, 2, -1, 1),
    Sketcher.Constraint("Equal", 0, 2),
    Sketcher.Constraint("DistanceX", 1, 2, 1, 1, Q("1.507 in")),
    Sketcher.Constraint("Distance", 0, Q("25.318385 mm")),
])
pad31 = body31.newObject("PartDesign::Pad", "Pad030")
pad31.Profile = sketch31
pad31.Length = Q("0.1 in")
body32 = doc.addObject("PartDesign::Body", "Body031")

sketch32 = body32.newObject("Sketcher::SketchObject", "Sketch031")
sketch32.AttachmentSupport = (doc.getObject("XY_Plane031"), [""])
sketch32.MapMode = "FlatFace"
sketch32.addGeometry([
    Part.LineSegment(Vector(0, -33, 0), Vector(0, 0, 0)),
    Part.LineSegment(Vector(0, 0, 0), Vector(-19, -17, 0)),
    Part.LineSegment(Vector(-19, -17, 0), Vector(0, -33, 0)),
], False)
sketch32.addConstraint([
    Sketcher.Constraint("Coincident", 0, 2, 1, 1),
    Sketcher.Constraint("Coincident", 1, 2, 2, 1),
    Sketcher.Constraint("Coincident", 2, 2, 0, 1),
    Sketcher.Constraint("Vertical", 0),
    Sketcher.Constraint("Coincident", 0, 2, -1, 1),
    Sketcher.Constraint("Equal", 1, 2),
    Sketcher.Constraint("DistanceX", 1, 2, -1, 1, Q("0.7535 in")),
    Sketcher.Constraint("DistanceY", 0, 1, 0, 2, Q("33.149547 mm")),
])
pad32 = body32.newObject("PartDesign::Pad", "Pad031")
pad32.Profile = sketch32
pad32.Length = Q("0.1 in")
body33 = doc.addObject("PartDesign::Body", "Body032")

sketch33 = body33.newObject("Sketcher::SketchObject", "Sketch032")
sketch33.AttachmentSupport = (doc.getObject("XY_Plane032"), [""])
sketch33.MapMode = "FlatFace"
sketch33.addGeometry([
    Part.LineSegment(Vector(19, -17, 0), Vector(0, 0, 0)),
    Part.LineSegment(Vector(0, 0, 0), Vector(0, -33, 0)),
    Part.LineSegment(Vector(0, -33, 0), Vector(19, -17, 0)),
], False)
sketch33.addConstraint([
    Sketcher.Constraint("Coincident", 0, 2, 1, 1),
    Sketcher.Constraint("Coincident", 1, 2, 2, 1),
    Sketcher.Constraint("Coincident", 2, 2, 0, 1),
    Sketcher.Constraint("Vertical", 1),
    Sketcher.Constraint("Coincident", 0, 2, -1, 1),
    Sketcher.Constraint("Equal", 0, 2),
    Sketcher.Constraint("DistanceX", -1, 1, 2, 2, Q("0.7535 in")),
    Sketcher.Constraint("DistanceY", 1, 2, 1, 1, Q("33.149547 mm")),
])
pad33 = body33.newObject("PartDesign::Pad", "Pad032")
pad33.Profile = sketch33
pad33.Length = Q("0.1 in")
body34 = doc.addObject("PartDesign::Body", "Body033")

sketch34 = body34.newObject("Sketcher::SketchObject", "Sketch033")
sketch34.AttachmentSupport = (doc.getObject("XY_Plane033"), [""])
sketch34.MapMode = "FlatFace"
sketch34.addGeometry([
    Part.LineSegment(Vector(19, -17, 0), Vector(38, 0, 0)),
    Part.LineSegment(Vector(38, 0, 0), Vector(0, 0, 0)),
    Part.LineSegment(Vector(0, 0, 0), Vector(19, -17, 0)),
], False)
sketch34.addConstraint([
    Sketcher.Constraint("Coincident", 0, 2, 1, 1),
    Sketcher.Constraint("Coincident", 1, 2, 2, 1),
    Sketcher.Constraint("Coincident", 2, 2, 0, 1),
    Sketcher.Constraint("Horizontal", 1),
    Sketcher.Constraint("Coincident", 1, 2, -1, 1),
    Sketcher.Constraint("Equal", 0, 2),
    Sketcher.Constraint("DistanceX", 1, 2, 1, 1, Q("1.507 in")),
    Sketcher.Constraint("Distance", 0, Q("25.318385 mm")),
])
pad34 = body34.newObject("PartDesign::Pad", "Pad033")
pad34.Profile = sketch34
pad34.Length = Q("0.1 in")
body35 = doc.addObject("PartDesign::Body", "Body034")

sketch35 = body35.newObject("Sketcher::SketchObject", "Sketch034")
sketch35.AttachmentSupport = (doc.getObject("XY_Plane034"), [""])
sketch35.MapMode = "FlatFace"
sketch35.addGeometry([
    Part.LineSegment(Vector(0, 0, 0), Vector(38, 0, 0)),
    Part.LineSegment(Vector(38, 0, 0), Vector(19, 17, 0)),
    Part.LineSegment(Vector(19, 17, 0), Vector(0, 0, 0)),
], False)
sketch35.addConstraint([
    Sketcher.Constraint("Coincident", 0, 2, 1, 1),
    Sketcher.Constraint("Coincident", 1, 2, 2, 1),
    Sketcher.Constraint("Coincident", 2, 2, 0, 1),
    Sketcher.Constraint("Horizontal", 0),
    Sketcher.Constraint("Coincident", 2, 2, -1, 1),
    Sketcher.Constraint("Equal", 1, 2),
    Sketcher.Constraint("DistanceX", 0, 1, 0, 2, Q("1.507 in")),
    Sketcher.Constraint("Distance", 1, Q("25.318385 mm")),
])
pad35 = body35.newObject("PartDesign::Pad", "Pad034")
pad35.Profile = sketch35
pad35.Length = Q("0.1 in")
body36 = doc.addObject("PartDesign::Body", "Body035")

sketch36 = body36.newObject("Sketcher::SketchObject", "Sketch035")
sketch36.AttachmentSupport = (doc.getObject("XY_Plane035"), [""])
sketch36.MapMode = "FlatFace"
sketch36.addGeometry([
    Part.LineSegment(Vector(0, 33, 0), Vector(0, 0, 0)),
    Part.LineSegment(Vector(0, 0, 0), Vector(19, 17, 0)),
    Part.LineSegment(Vector(19, 17, 0), Vector(0, 33, 0)),
], False)
sketch36.addConstraint([
    Sketcher.Constraint("Coincident", 0, 2, 1, 1),
    Sketcher.Constraint("Coincident", 1, 2, 2, 1),
    Sketcher.Constraint("Coincident", 2, 2, 0, 1),
    Sketcher.Constraint("Vertical", 0),
    Sketcher.Constraint("Coincident", 0, 2, -1, 1),
    Sketcher.Constraint("Equal", 1, 2),
    Sketcher.Constraint("DistanceX", -1, 1, 1, 2, Q("0.7535 in")),
    Sketcher.Constraint("DistanceY", 0, 2, 0, 1, Q("33.149547 mm")),
])
pad36 = body36.newObject("PartDesign::Pad", "Pad035")
pad36.Profile = sketch36
pad36.Length = Q("0.1 in")
body37 = doc.addObject("PartDesign::Body", "Body036")

sketch37 = body37.newObject("Sketcher::SketchObject", "Sketch036")
sketch37.AttachmentSupport = (doc.getObject("XZ_Plane036"), [""])
sketch37.MapMode = "FlatFace"
sketch37.addGeometry([
    Part.ArcOfCircle(Part.Circle(Vector(0, -4395, 0), Vector(0, 0, 1), 4396), math.radians(88.44), math.radians(91.56)),
    Part.LineSegment(Vector(-120, 0, 0), Vector(120, 0, 0)),
], False)
sketch37.addConstraint([
    Sketcher.Constraint("Coincident", 0, 1, 1, 2),
    Sketcher.Constraint("Coincident", 1, 1, 0, 2),
    Sketcher.Constraint("Horizontal", 1),
    Sketcher.Constraint("PointOnObject", 0, 1, -1),
    Sketcher.Constraint("Radius", 0, Q("4396.347865 mm")),
    Sketcher.Constraint("DistanceX", 0, 3, -1, 1, Q("0.0166 mm")),
    Sketcher.Constraint("DistanceX", 1, 1, 1, 2, Q("240.078578 mm")),
])
revolution = body37.newObject("PartDesign::Revolution", "Revolution")
revolution.Profile = sketch37
revolution.ReferenceAxis = (sketch37, ["H_Axis"])
revolution.Angle = 360
doc.recompute()

body38 = doc.addObject("PartDesign::Body", "Body037")
body38.BaseFeature = body37
boolean = body3.newObject("PartDesign::Boolean", "Boolean")
boolean.Type = "Cut"
boolean.addObjects([body38])
doc.recompute()

body39 = doc.addObject("PartDesign::Body", "Body038")
body39.BaseFeature = body37
boolean2 = body4.newObject("PartDesign::Boolean", "Boolean001")
boolean2.Type = "Cut"
boolean2.addObjects([body39])
doc.recompute()

body40 = doc.addObject("PartDesign::Body", "Body039")
body40.BaseFeature = body37
boolean3 = body9.newObject("PartDesign::Boolean", "Boolean002")
boolean3.Type = "Cut"
boolean3.addObjects([body40])
doc.recompute()

body41 = doc.addObject("PartDesign::Body", "Body040")
body41.BaseFeature = body37
boolean4 = body10.newObject("PartDesign::Boolean", "Boolean003")
boolean4.Type = "Cut"
boolean4.addObjects([body41])
doc.recompute()

body42 = doc.addObject("PartDesign::Body", "Body041")
body42.BaseFeature = body37
boolean5 = body15.newObject("PartDesign::Boolean", "Boolean004")
boolean5.Type = "Cut"
boolean5.addObjects([body42])
doc.recompute()

body43 = doc.addObject("PartDesign::Body", "Body042")
body43.BaseFeature = body37
boolean6 = body16.newObject("PartDesign::Boolean", "Boolean005")
boolean6.Type = "Cut"
boolean6.addObjects([body43])
doc.recompute()

body44 = doc.addObject("PartDesign::Body", "Body043")
body44.BaseFeature = body37
boolean7 = body17.newObject("PartDesign::Boolean", "Boolean006")
boolean7.Type = "Cut"
boolean7.addObjects([body44])
doc.recompute()

body45 = doc.addObject("PartDesign::Body", "Body044")
body45.BaseFeature = body37
boolean8 = body18.newObject("PartDesign::Boolean", "Boolean007")
boolean8.Type = "Cut"
boolean8.addObjects([body45])
doc.recompute()

body46 = doc.addObject("PartDesign::Body", "Body045")
body46.BaseFeature = body37
boolean9 = body23.newObject("PartDesign::Boolean", "Boolean008")
boolean9.Type = "Cut"
boolean9.addObjects([body46])
doc.recompute()

body47 = doc.addObject("PartDesign::Body", "Body046")
body47.BaseFeature = body37
boolean10 = body24.newObject("PartDesign::Boolean", "Boolean009")
boolean10.Type = "Cut"
boolean10.addObjects([body47])
doc.recompute()

body48 = doc.addObject("PartDesign::Body", "Body047")
body48.BaseFeature = body37
boolean11 = body25.newObject("PartDesign::Boolean", "Boolean010")
boolean11.Type = "Cut"
boolean11.addObjects([body48])
doc.recompute()

body49 = doc.addObject("PartDesign::Body", "Body048")
body49.BaseFeature = body37
boolean12 = body26.newObject("PartDesign::Boolean", "Boolean011")
boolean12.Type = "Cut"
boolean12.addObjects([body49])
doc.recompute()

body50 = doc.addObject("PartDesign::Body", "Body049")
body50.BaseFeature = body37
boolean13 = body29.newObject("PartDesign::Boolean", "Boolean012")
boolean13.Type = "Cut"
boolean13.addObjects([body50])
doc.recompute()

body51 = doc.addObject("PartDesign::Body", "Body050")
body51.BaseFeature = body37
boolean14 = body30.newObject("PartDesign::Boolean", "Boolean013")
boolean14.Type = "Cut"
boolean14.addObjects([body51])
doc.recompute()

body52 = doc.addObject("PartDesign::Body", "Body051")
body52.BaseFeature = body37
boolean15 = body31.newObject("PartDesign::Boolean", "Boolean014")
boolean15.Type = "Cut"
boolean15.addObjects([body52])
doc.recompute()

body53 = doc.addObject("PartDesign::Body", "Body052")
body53.BaseFeature = body37
boolean16 = body32.newObject("PartDesign::Boolean", "Boolean015")
boolean16.Type = "Cut"
boolean16.addObjects([body53])
doc.recompute()

body54 = doc.addObject("PartDesign::Body", "Body053")
body54.BaseFeature = body37
boolean17 = body33.newObject("PartDesign::Boolean", "Boolean016")
boolean17.Type = "Cut"
boolean17.addObjects([body54])
doc.recompute()

body55 = doc.addObject("PartDesign::Body", "Body054")
body55.BaseFeature = body37
boolean18 = body34.newObject("PartDesign::Boolean", "Boolean017")
boolean18.Type = "Cut"
boolean18.addObjects([body55])
doc.recompute()

body56 = doc.addObject("PartDesign::Body", "Body055")
body56.BaseFeature = body37
boolean19 = body35.newObject("PartDesign::Boolean", "Boolean018")
boolean19.Type = "Cut"
boolean19.addObjects([body56])
doc.recompute()

boolean20 = body36.newObject("PartDesign::Boolean", "Boolean019")
boolean20.Type = "Cut"
boolean20.addObjects([body37])

doc.recompute()
